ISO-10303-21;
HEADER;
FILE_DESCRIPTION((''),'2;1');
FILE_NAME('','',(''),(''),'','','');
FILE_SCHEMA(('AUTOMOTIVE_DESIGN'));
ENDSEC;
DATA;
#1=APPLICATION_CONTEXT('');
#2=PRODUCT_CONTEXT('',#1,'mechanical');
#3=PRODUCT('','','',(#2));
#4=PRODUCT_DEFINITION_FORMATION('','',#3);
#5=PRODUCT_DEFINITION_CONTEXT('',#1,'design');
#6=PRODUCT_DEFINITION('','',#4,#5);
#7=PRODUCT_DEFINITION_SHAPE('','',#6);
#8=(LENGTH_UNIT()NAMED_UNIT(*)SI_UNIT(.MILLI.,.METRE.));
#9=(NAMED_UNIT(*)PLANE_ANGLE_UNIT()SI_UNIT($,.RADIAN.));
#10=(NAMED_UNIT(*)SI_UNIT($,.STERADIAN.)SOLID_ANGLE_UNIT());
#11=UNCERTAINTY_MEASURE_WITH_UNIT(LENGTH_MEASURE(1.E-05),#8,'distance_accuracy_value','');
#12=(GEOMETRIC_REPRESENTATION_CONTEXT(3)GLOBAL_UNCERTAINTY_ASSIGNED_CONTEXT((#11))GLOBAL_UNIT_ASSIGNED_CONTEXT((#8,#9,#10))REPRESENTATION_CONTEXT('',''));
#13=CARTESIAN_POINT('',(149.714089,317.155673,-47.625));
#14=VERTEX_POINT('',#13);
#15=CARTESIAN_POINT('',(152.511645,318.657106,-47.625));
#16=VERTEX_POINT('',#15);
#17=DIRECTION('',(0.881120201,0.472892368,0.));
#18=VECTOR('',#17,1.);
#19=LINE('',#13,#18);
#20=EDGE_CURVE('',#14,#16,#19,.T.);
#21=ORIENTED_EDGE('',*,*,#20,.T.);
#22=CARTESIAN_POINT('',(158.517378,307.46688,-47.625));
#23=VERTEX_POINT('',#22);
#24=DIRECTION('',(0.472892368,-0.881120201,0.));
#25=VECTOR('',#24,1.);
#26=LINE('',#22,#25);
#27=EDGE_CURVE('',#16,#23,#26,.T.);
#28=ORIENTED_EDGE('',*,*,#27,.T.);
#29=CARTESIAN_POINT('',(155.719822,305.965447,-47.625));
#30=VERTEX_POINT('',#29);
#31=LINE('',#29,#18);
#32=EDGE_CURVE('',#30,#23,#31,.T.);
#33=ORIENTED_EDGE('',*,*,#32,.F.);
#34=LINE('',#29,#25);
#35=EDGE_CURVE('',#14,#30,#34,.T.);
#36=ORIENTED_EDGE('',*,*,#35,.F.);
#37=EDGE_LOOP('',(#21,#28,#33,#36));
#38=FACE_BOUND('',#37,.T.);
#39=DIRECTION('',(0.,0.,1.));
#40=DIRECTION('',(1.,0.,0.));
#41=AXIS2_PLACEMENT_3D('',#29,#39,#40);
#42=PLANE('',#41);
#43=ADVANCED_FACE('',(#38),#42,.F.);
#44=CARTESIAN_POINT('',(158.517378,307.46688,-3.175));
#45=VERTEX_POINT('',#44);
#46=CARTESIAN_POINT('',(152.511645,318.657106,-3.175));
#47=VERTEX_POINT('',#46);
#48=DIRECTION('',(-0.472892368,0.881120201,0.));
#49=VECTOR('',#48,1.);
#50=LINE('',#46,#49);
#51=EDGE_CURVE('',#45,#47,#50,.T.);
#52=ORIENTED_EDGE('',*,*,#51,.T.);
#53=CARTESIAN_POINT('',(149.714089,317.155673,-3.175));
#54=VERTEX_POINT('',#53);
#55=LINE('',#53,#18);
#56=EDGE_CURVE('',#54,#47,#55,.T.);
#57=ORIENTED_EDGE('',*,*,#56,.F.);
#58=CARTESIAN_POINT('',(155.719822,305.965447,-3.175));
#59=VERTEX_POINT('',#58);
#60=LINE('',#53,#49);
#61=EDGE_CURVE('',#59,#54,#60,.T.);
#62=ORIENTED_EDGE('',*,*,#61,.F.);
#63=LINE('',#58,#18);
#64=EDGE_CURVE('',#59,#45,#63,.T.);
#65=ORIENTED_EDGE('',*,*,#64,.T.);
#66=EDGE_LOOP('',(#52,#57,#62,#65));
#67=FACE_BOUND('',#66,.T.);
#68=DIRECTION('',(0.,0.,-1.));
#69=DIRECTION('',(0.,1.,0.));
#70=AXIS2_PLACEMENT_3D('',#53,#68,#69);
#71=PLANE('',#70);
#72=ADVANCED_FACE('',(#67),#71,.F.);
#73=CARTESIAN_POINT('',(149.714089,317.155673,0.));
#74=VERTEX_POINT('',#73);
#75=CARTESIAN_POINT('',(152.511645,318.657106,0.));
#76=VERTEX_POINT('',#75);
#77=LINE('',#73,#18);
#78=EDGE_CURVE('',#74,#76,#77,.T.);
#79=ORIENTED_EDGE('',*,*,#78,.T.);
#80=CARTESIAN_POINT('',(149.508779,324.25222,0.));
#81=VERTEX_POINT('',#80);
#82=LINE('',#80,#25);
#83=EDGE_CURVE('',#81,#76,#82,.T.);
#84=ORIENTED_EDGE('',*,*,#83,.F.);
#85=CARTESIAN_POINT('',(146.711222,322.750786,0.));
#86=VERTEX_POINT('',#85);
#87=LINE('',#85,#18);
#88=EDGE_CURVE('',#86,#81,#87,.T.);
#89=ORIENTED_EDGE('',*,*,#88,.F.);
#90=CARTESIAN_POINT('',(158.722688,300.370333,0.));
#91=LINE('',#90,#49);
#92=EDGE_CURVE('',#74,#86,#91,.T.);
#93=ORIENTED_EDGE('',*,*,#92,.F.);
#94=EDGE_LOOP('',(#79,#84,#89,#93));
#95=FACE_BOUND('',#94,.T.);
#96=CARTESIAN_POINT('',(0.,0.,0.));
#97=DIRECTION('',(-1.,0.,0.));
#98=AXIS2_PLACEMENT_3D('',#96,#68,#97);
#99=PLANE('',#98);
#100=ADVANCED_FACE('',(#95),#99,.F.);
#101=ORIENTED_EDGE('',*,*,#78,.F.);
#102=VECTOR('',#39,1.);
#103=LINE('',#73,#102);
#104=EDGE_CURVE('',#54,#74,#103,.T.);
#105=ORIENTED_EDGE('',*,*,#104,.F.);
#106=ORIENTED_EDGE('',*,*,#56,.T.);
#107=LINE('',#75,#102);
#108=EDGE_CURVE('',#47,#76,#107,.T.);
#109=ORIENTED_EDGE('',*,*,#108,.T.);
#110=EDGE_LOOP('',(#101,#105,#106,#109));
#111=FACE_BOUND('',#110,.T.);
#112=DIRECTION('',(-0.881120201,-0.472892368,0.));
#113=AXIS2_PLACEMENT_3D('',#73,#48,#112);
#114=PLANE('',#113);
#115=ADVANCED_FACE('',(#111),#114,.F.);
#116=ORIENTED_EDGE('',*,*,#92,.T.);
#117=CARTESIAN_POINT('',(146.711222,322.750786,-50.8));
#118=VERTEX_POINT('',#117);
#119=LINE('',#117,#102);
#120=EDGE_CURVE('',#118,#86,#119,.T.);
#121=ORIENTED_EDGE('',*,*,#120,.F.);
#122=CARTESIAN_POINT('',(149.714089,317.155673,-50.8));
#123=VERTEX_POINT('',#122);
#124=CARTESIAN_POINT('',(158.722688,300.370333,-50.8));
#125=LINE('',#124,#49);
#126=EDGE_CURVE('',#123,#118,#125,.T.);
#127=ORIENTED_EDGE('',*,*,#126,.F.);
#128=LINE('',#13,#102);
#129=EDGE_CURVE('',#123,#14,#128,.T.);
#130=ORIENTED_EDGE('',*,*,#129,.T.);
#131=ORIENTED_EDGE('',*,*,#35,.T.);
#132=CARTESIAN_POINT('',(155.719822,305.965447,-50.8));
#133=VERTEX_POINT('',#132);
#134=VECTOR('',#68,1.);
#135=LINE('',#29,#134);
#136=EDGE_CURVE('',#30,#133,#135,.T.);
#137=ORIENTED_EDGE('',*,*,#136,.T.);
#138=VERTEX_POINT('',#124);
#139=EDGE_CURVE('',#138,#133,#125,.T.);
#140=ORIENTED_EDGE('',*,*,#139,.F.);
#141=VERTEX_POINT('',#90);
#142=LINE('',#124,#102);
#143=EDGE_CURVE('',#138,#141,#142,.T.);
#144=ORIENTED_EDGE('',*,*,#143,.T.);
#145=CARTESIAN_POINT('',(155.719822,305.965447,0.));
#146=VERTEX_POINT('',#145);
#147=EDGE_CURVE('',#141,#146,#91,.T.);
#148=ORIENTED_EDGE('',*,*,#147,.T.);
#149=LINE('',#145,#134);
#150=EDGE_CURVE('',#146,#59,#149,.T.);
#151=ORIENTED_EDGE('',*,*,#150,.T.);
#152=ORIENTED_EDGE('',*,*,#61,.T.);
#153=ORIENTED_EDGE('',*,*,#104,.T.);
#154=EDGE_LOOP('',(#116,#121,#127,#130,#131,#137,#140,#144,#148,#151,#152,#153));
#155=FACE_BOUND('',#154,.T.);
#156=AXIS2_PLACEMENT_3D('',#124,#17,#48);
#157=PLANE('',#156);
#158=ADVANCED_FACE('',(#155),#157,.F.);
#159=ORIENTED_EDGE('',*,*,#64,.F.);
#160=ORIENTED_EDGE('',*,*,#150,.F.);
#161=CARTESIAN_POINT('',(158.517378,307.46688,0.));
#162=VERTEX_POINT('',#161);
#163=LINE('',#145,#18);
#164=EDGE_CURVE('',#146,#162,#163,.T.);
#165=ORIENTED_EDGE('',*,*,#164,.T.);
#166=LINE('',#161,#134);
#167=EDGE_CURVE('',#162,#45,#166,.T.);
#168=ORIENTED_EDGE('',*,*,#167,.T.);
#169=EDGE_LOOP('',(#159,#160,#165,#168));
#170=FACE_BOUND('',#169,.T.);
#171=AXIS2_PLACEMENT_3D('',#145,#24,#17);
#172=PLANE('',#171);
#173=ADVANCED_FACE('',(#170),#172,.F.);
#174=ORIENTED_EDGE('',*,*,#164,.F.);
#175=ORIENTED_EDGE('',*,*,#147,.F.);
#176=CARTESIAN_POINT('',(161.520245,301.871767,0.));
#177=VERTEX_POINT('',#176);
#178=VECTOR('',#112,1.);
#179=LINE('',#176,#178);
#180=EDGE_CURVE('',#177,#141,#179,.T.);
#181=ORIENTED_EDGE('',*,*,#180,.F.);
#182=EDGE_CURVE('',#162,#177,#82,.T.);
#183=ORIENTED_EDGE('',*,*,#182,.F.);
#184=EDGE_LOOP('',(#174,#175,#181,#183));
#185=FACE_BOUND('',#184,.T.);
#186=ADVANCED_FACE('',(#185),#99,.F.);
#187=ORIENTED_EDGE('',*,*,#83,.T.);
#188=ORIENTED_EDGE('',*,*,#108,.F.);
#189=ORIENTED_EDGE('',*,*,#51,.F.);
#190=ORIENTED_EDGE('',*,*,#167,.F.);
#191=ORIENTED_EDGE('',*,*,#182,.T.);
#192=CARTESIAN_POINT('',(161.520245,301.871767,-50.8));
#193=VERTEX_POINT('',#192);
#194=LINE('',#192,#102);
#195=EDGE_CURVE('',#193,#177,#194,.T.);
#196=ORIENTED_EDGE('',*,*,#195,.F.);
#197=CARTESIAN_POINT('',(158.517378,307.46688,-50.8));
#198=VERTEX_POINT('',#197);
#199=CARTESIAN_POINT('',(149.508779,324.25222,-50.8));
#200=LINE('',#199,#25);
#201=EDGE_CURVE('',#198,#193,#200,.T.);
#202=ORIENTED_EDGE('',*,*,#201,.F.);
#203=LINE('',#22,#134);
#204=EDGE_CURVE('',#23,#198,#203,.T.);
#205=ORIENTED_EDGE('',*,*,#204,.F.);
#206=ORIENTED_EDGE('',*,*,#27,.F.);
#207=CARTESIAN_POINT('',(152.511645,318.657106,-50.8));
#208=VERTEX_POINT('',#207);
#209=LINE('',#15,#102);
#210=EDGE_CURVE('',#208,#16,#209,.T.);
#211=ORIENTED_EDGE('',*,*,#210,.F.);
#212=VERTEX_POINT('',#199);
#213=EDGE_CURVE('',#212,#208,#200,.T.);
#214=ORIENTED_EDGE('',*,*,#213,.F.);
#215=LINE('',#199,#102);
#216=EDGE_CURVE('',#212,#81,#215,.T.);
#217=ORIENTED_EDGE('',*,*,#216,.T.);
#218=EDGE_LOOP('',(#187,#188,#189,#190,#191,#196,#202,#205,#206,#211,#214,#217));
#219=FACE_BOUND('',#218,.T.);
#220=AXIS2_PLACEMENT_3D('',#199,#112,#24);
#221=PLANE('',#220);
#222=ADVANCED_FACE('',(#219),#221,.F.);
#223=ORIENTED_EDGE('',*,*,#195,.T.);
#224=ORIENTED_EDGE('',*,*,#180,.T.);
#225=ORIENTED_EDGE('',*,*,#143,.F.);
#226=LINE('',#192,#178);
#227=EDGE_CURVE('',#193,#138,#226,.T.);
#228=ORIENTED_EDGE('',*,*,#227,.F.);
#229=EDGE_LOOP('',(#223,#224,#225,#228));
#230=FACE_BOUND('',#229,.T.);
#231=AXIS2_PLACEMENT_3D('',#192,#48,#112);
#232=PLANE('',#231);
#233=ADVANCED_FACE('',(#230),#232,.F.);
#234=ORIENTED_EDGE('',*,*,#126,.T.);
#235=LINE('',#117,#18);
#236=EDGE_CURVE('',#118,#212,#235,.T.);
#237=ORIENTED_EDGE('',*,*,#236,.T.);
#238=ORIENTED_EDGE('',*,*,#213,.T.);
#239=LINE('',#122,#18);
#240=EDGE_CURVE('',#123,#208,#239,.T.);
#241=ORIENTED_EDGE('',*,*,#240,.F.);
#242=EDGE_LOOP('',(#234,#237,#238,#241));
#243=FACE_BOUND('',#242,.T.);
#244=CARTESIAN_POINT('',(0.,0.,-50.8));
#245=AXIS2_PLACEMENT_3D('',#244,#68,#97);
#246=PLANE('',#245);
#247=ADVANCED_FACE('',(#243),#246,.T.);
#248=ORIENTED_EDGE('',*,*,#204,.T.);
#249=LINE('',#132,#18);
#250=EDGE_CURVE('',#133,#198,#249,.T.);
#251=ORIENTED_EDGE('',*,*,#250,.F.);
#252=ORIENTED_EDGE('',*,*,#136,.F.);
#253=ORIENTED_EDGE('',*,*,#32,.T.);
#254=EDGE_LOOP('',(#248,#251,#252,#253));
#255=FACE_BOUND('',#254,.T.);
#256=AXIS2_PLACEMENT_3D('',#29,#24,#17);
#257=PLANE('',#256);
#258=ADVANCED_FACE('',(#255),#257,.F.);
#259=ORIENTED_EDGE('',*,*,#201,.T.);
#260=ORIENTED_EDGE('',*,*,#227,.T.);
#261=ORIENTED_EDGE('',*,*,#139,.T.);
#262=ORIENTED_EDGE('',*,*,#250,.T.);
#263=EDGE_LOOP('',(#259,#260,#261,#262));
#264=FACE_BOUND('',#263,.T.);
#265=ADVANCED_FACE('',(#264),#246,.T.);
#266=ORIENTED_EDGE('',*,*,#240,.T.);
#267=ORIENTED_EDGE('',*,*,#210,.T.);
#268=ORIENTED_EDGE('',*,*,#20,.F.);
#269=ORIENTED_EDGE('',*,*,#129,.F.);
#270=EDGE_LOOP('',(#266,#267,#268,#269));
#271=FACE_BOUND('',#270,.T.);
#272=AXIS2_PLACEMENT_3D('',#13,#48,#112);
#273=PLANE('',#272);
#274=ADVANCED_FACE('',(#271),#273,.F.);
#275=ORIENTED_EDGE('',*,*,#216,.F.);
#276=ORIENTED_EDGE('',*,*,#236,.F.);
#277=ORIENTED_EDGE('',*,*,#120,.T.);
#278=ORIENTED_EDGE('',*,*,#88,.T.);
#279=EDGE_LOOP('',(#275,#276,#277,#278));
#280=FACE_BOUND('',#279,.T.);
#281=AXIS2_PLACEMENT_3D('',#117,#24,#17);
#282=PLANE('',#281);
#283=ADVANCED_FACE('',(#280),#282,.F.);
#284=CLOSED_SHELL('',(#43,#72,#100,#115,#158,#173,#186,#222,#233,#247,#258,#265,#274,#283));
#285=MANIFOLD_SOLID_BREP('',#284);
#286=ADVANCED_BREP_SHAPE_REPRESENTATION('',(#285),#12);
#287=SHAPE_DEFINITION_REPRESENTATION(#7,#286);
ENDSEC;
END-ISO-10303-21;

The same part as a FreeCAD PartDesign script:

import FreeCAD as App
import Part
import Sketcher

V = App.Vector
Q = App.Units.Quantity


def add_polygon(sketch, points):
    """Adds a closed chain of lines whose ends are joined by coincident constraints."""
    first, n = sketch.GeometryCount, len(points)
    for a, b in zip(points, points[1:] + points[:1]):
        sketch.addGeometry(Part.LineSegment(App.Vector(*a, 0), App.Vector(*b, 0)), False)
    for i in range(n):
        sketch.addConstraint(Sketcher.Constraint("Coincident", first + i, 2, first + (i + 1) % n, 1))

doc = App.newDocument("Part")
body = doc.addObject("PartDesign::Body", "Body")

sketch1 = body.newObject("Sketcher::SketchObject", "Sketch")
sketch1.AttachmentSupport = (doc.getObject("XY_Plane"), [""])
sketch1.MapMode = "FlatFace"
add_polygon(sketch1, [(161.5, 301.9), (149.5, 324.3), (146.7, 322.8), (158.7, 300.4)])
sketch1.addConstraint(Sketcher.Constraint("Perpendicular", 0, 1))
sketch1.addConstraint(Sketcher.Constraint("Perpendicular", 1, 2))
sketch1.addConstraint(Sketcher.Constraint("Perpendicular", 2, 3))
sketch1.addConstraint(Sketcher.Constraint("Distance", 0, Q("1 in")))
sketch1.addConstraint(Sketcher.Constraint("Distance", 1, Q("0.125 in")))
sketch1.addConstraint(Sketcher.Constraint("DistanceX", -1, 1, 0, 2, Q("149.508779 mm")))
sketch1.addConstraint(Sketcher.Constraint("DistanceY", -1, 1, 0, 2, Q("324.25222 mm")))
sketch1.addConstraint(Sketcher.Constraint("DistanceX", -1, 1, 2, 2, Q("158.722688 mm")))
pad1 = body.newObject("PartDesign::Pad", "Pad")
pad1.Profile = sketch1
pad1.Length = Q("2 in")
pad1.Reversed = True

sketch2 = body.newObject("Sketcher::SketchObject", "Sketch001")
sketch2.Placement = App.Placement(V(251.18235, 134.808186, 0), App.Rotation(V(0, 0, -1), V(-0.472892368, 0.881120201, 0), V(0.881120201, 0.472892368, 0), "ZXY"))
add_polygon(sketch2, [(0, 208.7), (0, 196), (3.2, 196), (3.2, 208.7)])
add_polygon(sketch2, [(47.6, 208.7), (47.6, 196), (50.8, 196), (50.8, 208.7)])
sketch2.addConstraint(Sketcher.Constraint("Vertical", 0))
sketch2.addConstraint(Sketcher.Constraint("Horizontal", 1))
sketch2.addConstraint(Sketcher.Constraint("Vertical", 2))
sketch2.addConstraint(Sketcher.Constraint("Horizontal", 3))
sketch2.addConstraint(Sketcher.Constraint("Vertical", 4))
sketch2.addConstraint(Sketcher.Constraint("Horizontal", 5))
sketch2.addConstraint(Sketcher.Constraint("Vertical", 6))
sketch2.addConstraint(Sketcher.Constraint("Horizontal", 7))
sketch2.addConstraint(Sketcher.Constraint("PointOnObject", 0, 2, -2))
sketch2.addConstraint(Sketcher.Constraint("Horizontal", 1, 2, 4, 2))
sketch2.addConstraint(Sketcher.Constraint("Horizontal", 3, 2, 6, 2))
sketch2.addConstraint(Sketcher.Constraint("Equal", 3, 5))
sketch2.addConstraint(Sketcher.Constraint("DistanceY", 0, 2, 0, 1, Q("0.5 in")))
sketch2.addConstraint(Sketcher.Constraint("DistanceX", -1, 1, 5, 2, Q("2 in")))
sketch2.addConstraint(Sketcher.Constraint("DistanceX", 1, 1, 1, 2, Q("0.125 in")))
sketch2.addConstraint(Sketcher.Constraint("DistanceY", -1, 1, 0, 2, Q("195.953621 mm")))
pocket1 = body.newObject("PartDesign::Pocket", "Pocket")
pocket1.Profile = sketch2
pocket1.Length = Q("0.125 in")

doc.recompute()
